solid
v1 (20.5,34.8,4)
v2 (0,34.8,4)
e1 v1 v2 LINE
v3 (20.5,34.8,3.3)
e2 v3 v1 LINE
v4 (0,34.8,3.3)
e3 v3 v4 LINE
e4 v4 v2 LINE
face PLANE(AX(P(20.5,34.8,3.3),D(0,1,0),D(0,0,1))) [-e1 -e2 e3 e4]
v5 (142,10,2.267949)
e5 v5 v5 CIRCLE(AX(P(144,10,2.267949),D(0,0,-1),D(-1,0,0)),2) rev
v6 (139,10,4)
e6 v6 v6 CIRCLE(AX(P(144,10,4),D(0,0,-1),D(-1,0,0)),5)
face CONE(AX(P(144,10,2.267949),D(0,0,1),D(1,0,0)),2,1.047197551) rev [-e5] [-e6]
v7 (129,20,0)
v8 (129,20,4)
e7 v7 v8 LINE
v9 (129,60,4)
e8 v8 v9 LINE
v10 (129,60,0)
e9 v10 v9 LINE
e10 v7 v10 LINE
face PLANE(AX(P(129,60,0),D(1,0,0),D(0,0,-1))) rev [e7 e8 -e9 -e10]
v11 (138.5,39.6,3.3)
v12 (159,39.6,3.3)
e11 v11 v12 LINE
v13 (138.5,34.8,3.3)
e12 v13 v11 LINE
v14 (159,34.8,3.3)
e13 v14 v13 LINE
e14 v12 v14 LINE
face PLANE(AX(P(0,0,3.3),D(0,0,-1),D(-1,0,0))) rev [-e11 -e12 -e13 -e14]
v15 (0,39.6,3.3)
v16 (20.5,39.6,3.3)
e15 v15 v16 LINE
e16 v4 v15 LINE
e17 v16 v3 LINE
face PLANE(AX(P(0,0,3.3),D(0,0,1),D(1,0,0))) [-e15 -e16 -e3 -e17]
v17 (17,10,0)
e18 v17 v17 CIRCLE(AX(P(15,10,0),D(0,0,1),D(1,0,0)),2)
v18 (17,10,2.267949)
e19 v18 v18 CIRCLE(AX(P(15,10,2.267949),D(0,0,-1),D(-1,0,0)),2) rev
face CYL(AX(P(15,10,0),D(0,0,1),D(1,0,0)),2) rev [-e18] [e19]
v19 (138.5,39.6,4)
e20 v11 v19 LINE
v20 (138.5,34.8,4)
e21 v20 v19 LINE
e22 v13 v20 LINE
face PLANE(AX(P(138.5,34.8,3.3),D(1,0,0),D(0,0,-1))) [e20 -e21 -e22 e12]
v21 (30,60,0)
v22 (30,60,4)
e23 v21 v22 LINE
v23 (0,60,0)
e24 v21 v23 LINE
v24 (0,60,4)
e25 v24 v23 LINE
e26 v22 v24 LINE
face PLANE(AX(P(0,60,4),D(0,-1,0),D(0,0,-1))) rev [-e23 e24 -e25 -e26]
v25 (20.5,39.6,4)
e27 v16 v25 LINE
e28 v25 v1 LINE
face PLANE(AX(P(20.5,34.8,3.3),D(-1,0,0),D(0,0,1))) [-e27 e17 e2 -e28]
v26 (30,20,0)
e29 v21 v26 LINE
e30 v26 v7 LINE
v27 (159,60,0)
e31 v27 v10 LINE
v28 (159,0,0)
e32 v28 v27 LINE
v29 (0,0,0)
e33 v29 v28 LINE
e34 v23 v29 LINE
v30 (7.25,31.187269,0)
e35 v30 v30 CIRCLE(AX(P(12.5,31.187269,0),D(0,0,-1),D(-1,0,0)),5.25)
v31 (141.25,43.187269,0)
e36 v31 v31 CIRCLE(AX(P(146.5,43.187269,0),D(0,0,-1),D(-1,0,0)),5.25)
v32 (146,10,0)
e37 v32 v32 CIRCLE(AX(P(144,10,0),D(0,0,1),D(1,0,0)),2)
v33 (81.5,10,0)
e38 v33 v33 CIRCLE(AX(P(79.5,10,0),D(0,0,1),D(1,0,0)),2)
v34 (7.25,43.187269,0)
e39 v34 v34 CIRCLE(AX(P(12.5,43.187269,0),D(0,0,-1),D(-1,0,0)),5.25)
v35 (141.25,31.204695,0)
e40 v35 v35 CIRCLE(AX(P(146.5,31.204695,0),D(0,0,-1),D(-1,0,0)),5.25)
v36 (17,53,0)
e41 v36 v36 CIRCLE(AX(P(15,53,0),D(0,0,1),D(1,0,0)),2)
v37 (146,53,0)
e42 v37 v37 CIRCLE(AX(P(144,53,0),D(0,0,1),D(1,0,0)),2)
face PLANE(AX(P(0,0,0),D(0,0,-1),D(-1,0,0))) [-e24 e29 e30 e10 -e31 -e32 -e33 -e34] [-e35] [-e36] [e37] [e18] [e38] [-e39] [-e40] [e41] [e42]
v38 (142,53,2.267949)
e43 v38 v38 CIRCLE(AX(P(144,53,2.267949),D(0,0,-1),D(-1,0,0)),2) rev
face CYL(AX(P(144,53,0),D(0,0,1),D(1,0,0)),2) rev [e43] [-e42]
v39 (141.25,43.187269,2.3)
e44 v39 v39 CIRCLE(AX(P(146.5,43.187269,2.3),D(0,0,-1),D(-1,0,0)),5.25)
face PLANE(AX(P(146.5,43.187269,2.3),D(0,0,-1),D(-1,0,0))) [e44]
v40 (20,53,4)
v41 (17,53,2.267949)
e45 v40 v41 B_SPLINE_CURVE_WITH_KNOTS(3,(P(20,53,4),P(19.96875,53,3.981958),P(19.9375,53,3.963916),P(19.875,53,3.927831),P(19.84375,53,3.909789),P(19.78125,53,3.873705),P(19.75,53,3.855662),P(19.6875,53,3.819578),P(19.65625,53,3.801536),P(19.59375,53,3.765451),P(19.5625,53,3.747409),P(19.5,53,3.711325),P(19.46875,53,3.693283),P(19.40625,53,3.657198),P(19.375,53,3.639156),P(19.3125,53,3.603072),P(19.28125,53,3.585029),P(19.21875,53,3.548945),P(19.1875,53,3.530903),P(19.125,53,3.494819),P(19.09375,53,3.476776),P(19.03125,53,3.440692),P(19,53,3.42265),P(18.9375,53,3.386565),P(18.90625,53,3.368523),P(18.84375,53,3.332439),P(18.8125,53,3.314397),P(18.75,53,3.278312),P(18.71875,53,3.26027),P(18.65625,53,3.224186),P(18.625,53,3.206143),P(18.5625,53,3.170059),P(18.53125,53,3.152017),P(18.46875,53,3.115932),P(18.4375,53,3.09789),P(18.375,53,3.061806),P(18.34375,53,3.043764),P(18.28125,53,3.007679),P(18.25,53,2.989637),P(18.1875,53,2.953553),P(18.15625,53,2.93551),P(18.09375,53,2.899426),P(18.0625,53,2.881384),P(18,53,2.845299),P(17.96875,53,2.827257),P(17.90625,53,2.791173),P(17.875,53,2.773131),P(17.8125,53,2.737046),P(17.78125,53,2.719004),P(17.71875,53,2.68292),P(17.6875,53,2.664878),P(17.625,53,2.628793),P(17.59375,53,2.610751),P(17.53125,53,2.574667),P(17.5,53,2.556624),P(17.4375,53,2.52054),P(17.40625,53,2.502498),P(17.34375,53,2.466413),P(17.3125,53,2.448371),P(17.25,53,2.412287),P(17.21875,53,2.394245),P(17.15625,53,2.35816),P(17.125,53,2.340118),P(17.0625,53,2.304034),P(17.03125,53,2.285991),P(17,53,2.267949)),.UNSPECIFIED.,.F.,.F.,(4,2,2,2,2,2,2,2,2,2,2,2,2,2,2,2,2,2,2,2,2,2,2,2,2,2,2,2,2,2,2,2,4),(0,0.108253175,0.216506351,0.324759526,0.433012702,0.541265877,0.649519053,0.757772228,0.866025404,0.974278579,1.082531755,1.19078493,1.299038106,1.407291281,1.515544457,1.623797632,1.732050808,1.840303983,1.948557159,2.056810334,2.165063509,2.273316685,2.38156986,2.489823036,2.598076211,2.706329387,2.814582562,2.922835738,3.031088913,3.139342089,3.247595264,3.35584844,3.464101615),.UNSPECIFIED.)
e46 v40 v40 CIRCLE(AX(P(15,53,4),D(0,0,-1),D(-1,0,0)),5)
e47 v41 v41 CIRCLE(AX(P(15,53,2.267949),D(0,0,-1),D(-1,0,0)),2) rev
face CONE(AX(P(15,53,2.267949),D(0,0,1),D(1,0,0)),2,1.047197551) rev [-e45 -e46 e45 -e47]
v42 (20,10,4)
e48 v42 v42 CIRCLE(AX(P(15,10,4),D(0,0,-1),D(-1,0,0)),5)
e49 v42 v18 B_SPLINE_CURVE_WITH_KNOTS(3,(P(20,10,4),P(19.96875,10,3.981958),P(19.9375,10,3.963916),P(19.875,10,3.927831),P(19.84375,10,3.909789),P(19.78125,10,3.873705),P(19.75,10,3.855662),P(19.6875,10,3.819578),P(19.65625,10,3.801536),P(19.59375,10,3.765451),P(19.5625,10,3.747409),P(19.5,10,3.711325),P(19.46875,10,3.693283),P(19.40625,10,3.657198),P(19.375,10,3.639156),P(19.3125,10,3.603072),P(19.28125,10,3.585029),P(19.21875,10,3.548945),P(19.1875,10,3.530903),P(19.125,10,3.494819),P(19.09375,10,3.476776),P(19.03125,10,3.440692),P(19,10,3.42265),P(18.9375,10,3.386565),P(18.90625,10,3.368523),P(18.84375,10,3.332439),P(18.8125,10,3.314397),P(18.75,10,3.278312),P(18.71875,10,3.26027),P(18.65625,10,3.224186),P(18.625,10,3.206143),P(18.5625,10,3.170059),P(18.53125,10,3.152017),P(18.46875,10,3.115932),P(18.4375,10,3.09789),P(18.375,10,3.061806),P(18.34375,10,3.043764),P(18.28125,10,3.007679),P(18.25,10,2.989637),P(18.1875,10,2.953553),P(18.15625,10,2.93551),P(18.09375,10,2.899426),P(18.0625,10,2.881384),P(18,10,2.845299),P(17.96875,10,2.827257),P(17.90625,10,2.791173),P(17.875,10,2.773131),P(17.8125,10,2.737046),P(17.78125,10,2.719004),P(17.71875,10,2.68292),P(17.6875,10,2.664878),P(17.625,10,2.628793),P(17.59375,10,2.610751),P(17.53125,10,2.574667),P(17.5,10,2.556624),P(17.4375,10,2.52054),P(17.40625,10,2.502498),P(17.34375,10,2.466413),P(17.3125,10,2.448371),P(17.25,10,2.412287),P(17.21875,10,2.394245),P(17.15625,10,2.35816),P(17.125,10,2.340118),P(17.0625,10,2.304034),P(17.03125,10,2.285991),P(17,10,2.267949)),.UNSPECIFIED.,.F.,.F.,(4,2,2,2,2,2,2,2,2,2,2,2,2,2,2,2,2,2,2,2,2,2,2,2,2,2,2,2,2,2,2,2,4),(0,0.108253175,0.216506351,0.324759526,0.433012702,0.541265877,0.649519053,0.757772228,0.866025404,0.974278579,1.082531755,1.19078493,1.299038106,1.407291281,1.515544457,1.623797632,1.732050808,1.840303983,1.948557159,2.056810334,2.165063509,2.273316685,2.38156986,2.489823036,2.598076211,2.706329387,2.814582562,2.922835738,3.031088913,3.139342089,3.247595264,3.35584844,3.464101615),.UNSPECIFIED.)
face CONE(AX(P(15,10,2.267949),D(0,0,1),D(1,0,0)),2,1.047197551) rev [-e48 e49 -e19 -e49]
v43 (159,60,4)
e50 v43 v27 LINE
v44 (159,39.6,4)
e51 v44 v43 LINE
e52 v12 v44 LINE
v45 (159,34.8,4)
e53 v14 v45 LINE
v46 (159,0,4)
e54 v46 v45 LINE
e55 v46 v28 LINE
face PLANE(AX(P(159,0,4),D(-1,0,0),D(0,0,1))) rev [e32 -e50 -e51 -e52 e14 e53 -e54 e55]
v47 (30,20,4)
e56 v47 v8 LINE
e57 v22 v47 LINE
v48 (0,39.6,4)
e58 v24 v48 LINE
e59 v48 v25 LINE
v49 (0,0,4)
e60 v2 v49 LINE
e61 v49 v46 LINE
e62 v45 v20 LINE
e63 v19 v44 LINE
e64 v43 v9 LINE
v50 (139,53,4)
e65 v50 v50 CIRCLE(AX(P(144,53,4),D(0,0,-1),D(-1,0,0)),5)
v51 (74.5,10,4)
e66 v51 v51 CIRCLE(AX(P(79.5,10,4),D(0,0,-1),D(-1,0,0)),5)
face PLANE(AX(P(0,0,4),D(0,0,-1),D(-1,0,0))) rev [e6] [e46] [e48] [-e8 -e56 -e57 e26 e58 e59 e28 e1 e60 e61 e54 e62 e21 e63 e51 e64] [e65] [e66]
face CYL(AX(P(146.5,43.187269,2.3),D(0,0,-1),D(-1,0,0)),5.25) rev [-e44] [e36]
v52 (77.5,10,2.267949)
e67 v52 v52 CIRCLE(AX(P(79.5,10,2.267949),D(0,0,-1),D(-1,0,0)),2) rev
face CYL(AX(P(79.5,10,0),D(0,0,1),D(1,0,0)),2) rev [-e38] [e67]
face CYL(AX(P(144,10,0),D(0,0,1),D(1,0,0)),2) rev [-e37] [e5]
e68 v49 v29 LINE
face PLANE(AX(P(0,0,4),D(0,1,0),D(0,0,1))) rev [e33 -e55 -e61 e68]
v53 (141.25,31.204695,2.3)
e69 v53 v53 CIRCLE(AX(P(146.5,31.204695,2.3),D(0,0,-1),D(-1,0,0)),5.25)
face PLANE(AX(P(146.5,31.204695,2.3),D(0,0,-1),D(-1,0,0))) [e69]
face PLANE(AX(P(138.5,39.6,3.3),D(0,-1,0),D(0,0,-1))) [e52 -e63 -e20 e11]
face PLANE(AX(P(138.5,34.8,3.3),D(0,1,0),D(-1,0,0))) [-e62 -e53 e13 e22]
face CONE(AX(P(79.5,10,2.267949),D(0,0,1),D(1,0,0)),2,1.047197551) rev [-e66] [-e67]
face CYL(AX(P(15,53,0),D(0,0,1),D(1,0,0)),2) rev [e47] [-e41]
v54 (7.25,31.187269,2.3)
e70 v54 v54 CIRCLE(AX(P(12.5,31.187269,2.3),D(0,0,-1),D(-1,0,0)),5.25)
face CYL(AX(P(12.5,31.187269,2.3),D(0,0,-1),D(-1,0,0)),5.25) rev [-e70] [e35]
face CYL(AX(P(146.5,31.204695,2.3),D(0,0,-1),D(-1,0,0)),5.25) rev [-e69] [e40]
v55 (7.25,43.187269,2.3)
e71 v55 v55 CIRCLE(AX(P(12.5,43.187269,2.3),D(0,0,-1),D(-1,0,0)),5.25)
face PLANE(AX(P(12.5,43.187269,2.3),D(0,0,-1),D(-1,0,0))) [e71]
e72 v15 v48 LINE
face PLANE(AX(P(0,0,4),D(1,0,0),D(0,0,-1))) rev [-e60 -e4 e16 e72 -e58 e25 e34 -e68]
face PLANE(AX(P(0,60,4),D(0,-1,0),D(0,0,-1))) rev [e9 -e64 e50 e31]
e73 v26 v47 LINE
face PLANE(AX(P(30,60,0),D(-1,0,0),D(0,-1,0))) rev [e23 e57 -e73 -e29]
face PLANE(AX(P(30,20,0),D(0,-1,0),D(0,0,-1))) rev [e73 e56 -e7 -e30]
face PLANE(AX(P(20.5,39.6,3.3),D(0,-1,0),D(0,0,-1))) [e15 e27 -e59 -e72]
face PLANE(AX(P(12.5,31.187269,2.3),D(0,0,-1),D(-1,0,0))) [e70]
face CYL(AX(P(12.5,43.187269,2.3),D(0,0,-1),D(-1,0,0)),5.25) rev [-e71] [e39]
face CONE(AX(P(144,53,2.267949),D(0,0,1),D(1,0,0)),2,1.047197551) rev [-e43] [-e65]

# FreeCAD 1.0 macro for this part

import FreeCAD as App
import Part
import Sketcher
from FreeCAD import Vector
Q = App.Units.Quantity


def edges_at(feature, points):
    """Names of the edges that pass closest to the given points."""
    edges = feature.Shape.Edges
    near = lambda p: min(range(len(edges)), key=lambda i: edges[i].distToShape(Part.Vertex(*p))[0])
    return sorted({f"Edge{near(p) + 1}" for p in points})

doc = App.newDocument("Part")
params = doc.addObject("Spreadsheet::Sheet", "Params")
for row, (alias, value) in enumerate([
    ("sketch1_width", "159 mm"),
    ("sketch1_height", "60 mm"),
    ("pad1_length", "4 mm"),
    ("sketch2_width", "20.5 mm"),
    ("sketch2_height", "4.8 mm"),
    ("pocket1_length", "0.7 mm"),
    ("sketch3_diameter", "10.5 mm"),
    ("pocket2_length", "2.3 mm"),
    ("sketch4_width", "99 mm"),
    ("sketch4_height", "40 mm"),
    ("pocket3_length", "4 mm"),
    ("sketch5_diameter", "4 mm"),
    ("pocket4_length", "4 mm"),
    ("chamfer_size", "3 mm"),
    ("chamfer_size2", "1.732051 mm"),
], start=1):
    params.set(f"A{row}", alias)
    params.set(f"B{row}", "=" + value)
    params.setAlias(f"B{row}", alias)

body = doc.addObject("PartDesign::Body", "Body")

# Sketch on XY plane
sketch1 = body.newObject("Sketcher::SketchObject", "Sketch")
sketch1.AttachmentSupport = (doc.getObject("XY_Plane"), [""])
sketch1.MapMode = "FlatFace"
sketch1.addGeometry([
    Part.LineSegment(Vector(0, 60, 0), Vector(0, 0, 0)),
    Part.LineSegment(Vector(0, 0, 0), Vector(159, 0, 0)),
    Part.LineSegment(Vector(159, 0, 0), Vector(159, 60, 0)),
    Part.LineSegment(Vector(159, 60, 0), Vector(0, 60, 0)),
], False)
sketch1.addConstraint([
    Sketcher.Constraint("Coincident", 0, 2, 1, 1),
    Sketcher.Constraint("Coincident", 1, 2, 2, 1),
    Sketcher.Constraint("Coincident", 2, 2, 3, 1),
    Sketcher.Constraint("Coincident", 3, 2, 0, 1),
    Sketcher.Constraint("Vertical", 0),
    Sketcher.Constraint("Horizontal", 1),
    Sketcher.Constraint("Vertical", 2),
    Sketcher.Constraint("Horizontal", 3),
    Sketcher.Constraint("Coincident", 0, 2, -1, 1),
    Sketcher.Constraint("DistanceX", 1, 1, 1, 2, Q("159 mm")),
    Sketcher.Constraint("DistanceY", 0, 2, 0, 1, Q("60 mm")),
])
sketch1.setExpression("Constraints[9]", "Params.sketch1_width")
sketch1.setExpression("Constraints[10]", "Params.sketch1_height")
pad1 = body.newObject("PartDesign::Pad", "Pad")
pad1.Profile = sketch1
pad1.setExpression("Length", "Params.pad1_length")

# Sketch on XY plane
sketch2 = body.newObject("Sketcher::SketchObject", "Sketch001")
sketch2.AttachmentSupport = (doc.getObject("XY_Plane"), [""])
sketch2.MapMode = "FlatFace"
sketch2.AttachmentOffset = App.Placement(Vector(0, 0, 4), App.Rotation())
sketch2.addGeometry([
    Part.LineSegment(Vector(20.5, 39.6, 0), Vector(20.5, 34.8, 0)),  # 0
    Part.LineSegment(Vector(20.5, 34.8, 0), Vector(0, 34.8, 0)),  # 1
    Part.LineSegment(Vector(0, 34.8, 0), Vector(0, 39.6, 0)),  # 2
    Part.LineSegment(Vector(0, 39.6, 0), Vector(20.5, 39.6, 0)),  # 3
    Part.LineSegment(Vector(159, 39.6, 0), Vector(159, 34.8, 0)),  # 4
    Part.LineSegment(Vector(159, 34.8, 0), Vector(138.5, 34.8, 0)),  # 5
    Part.LineSegment(Vector(138.5, 34.8, 0), Vector(138.5, 39.6, 0)),  # 6
    Part.LineSegment(Vector(138.5, 39.6, 0), Vector(159, 39.6, 0)),  # 7
], False)
sketch2.addConstraint([
    Sketcher.Constraint("Coincident", 0, 2, 1, 1),
    Sketcher.Constraint("Coincident", 1, 2, 2, 1),
    Sketcher.Constraint("Coincident", 2, 2, 3, 1),
    Sketcher.Constraint("Coincident", 3, 2, 0, 1),
    Sketcher.Constraint("Coincident", 4, 2, 5, 1),
    Sketcher.Constraint("Coincident", 5, 2, 6, 1),
    Sketcher.Constraint("Coincident", 6, 2, 7, 1),
    Sketcher.Constraint("Coincident", 7, 2, 4, 1),
    Sketcher.Constraint("Vertical", 0),
    Sketcher.Constraint("Horizontal", 1),
    Sketcher.Constraint("Vertical", 2),
    Sketcher.Constraint("Horizontal", 3),
    Sketcher.Constraint("Vertical", 4),
    Sketcher.Constraint("Horizontal", 5),
    Sketcher.Constraint("Vertical", 6),
    Sketcher.Constraint("Horizontal", 7),
    Sketcher.Constraint("PointOnObject", 1, 2, -2),
    Sketcher.Constraint("Horizontal", 1, 2, 4, 2),
    Sketcher.Constraint("Horizontal", 3, 2, 6, 2),
    Sketcher.Constraint("Equal", 3, 5),
    Sketcher.Constraint("DistanceX", 1, 2, 1, 1, Q("20.5 mm")),
    Sketcher.Constraint("DistanceY", 0, 2, 0, 1, Q("4.8 mm")),
    Sketcher.Constraint("DistanceX", -1, 1, 4, 2, Q("159 mm")),
    Sketcher.Constraint("DistanceY", -1, 1, 0, 2, Q("34.8 mm")),
])
sketch2.setExpression("Constraints[20]", "Params.sketch2_width")
sketch2.setExpression("Constraints[21]", "Params.sketch2_height")
pocket1 = body.newObject("PartDesign::Pocket", "Pocket")
pocket1.Profile = sketch2
pocket1.setExpression("Length", "Params.pocket1_length")

# Sketch on XY plane
sketch3 = body.newObject("Sketcher::SketchObject", "Sketch002")
sketch3.AttachmentSupport = (doc.getObject("XY_Plane"), [""])
sketch3.MapMode = "FlatFace"
sketch3.addGeometry([
    Part.Circle(Vector(12, 31, 0), Vector(0, 0, 1), 5),
    Part.Circle(Vector(12, 43, 0), Vector(0, 0, 1), 5),
    Part.Circle(Vector(146, 31, 0), Vector(0, 0, 1), 5),
    Part.Circle(Vector(146, 43, 0), Vector(0, 0, 1), 5),
], False)
sketch3.addConstraint([
    Sketcher.Constraint("Equal", 0, 1),
    Sketcher.Constraint("Equal", 1, 2),
    Sketcher.Constraint("Equal", 2, 3),
    Sketcher.Constraint("Horizontal", 1, 3, 3, 3),
    Sketcher.Constraint("Vertical", 0, 3, 1, 3),
    Sketcher.Constraint("Vertical", 2, 3, 3, 3),
    Sketcher.Constraint("Diameter", 0, Q("10.5 mm")),
    Sketcher.Constraint("DistanceY", 0, 3, 1, 3, Q("12 mm")),
    Sketcher.Constraint("DistanceX", 0, 3, 2, 3, Q("134 mm")),
    Sketcher.Constraint("DistanceX", -1, 1, 0, 3, Q("12.5 mm")),
    Sketcher.Constraint("DistanceY", -1, 1, 0, 3, Q("31.187269 mm")),
    Sketcher.Constraint("DistanceY", -1, 1, 2, 3, Q("31.204695 mm")),
])
sketch3.setExpression("Constraints[6]", "Params.sketch3_diameter")
pocket2 = body.newObject("PartDesign::Pocket", "Pocket001")
pocket2.Profile = sketch3
pocket2.setExpression("Length", "Params.pocket2_length")
pocket2.Reversed = True

# Sketch on XY plane
sketch4 = body.newObject("Sketcher::SketchObject", "Sketch003")
sketch4.AttachmentSupport = (doc.getObject("XY_Plane"), [""])
sketch4.MapMode = "FlatFace"
sketch4.AttachmentOffset = App.Placement(Vector(0, 0, 4), App.Rotation())
sketch4.addGeometry([
    Part.LineSegment(Vector(30, 60, 0), Vector(30, 20, 0)),
    Part.LineSegment(Vector(30, 20, 0), Vector(129, 20, 0)),
    Part.LineSegment(Vector(129, 20, 0), Vector(129, 60, 0)),
    Part.LineSegment(Vector(129, 60, 0), Vector(30, 60, 0)),
], False)
sketch4.addConstraint([
    Sketcher.Constraint("Coincident", 0, 2, 1, 1),
    Sketcher.Constraint("Coincident", 1, 2, 2, 1),
    Sketcher.Constraint("Coincident", 2, 2, 3, 1),
    Sketcher.Constraint("Coincident", 3, 2, 0, 1),
    Sketcher.Constraint("Vertical", 0),
    Sketcher.Constraint("Horizontal", 1),
    Sketcher.Constraint("Vertical", 2),
    Sketcher.Constraint("Horizontal", 3),
    Sketcher.Constraint("DistanceX", 1, 1, 1, 2, Q("99 mm")),
    Sketcher.Constraint("DistanceY", 0, 2, 0, 1, Q("40 mm")),
    Sketcher.Constraint("DistanceX", -1, 1, 0, 2, Q("30 mm")),
    Sketcher.Constraint("DistanceY", -1, 1, 0, 2, Q("20 mm")),
])
sketch4.setExpression("Constraints[8]", "Params.sketch4_width")
sketch4.setExpression("Constraints[9]", "Params.sketch4_height")
pocket3 = body.newObject("PartDesign::Pocket", "Pocket002")
pocket3.Profile = sketch4
pocket3.setExpression("Length", "Params.pocket3_length")

# Sketch on XY plane
sketch5 = body.newObject("Sketcher::SketchObject", "Sketch004")
sketch5.AttachmentSupport = (doc.getObject("XY_Plane"), [""])
sketch5.MapMode = "FlatFace"
sketch5.AttachmentOffset = App.Placement(Vector(0, 0, 4), App.Rotation())
sketch5.addGeometry([
    Part.Circle(Vector(15, 10, 0), Vector(0, 0, 1), 2),  # 0
    Part.Circle(Vector(144, 10, 0), Vector(0, 0, 1), 2),  # 1
    Part.Circle(Vector(15, 53, 0), Vector(0, 0, 1), 2),  # 2
    Part.Circle(Vector(144, 53, 0), Vector(0, 0, 1), 2),  # 3
    Part.Circle(Vector(79.5, 10, 0), Vector(0, 0, 1), 2),  # 4
], False)
sketch5.addConstraint([
    Sketcher.Constraint("Equal", 0, 1),
    Sketcher.Constraint("Equal", 1, 2),
    Sketcher.Constraint("Equal", 2, 3),
    Sketcher.Constraint("Equal", 3, 4),
    Sketcher.Constraint("Horizontal", 0, 3, 1, 3),
    Sketcher.Constraint("Horizontal", 2, 3, 3, 3),
    Sketcher.Constraint("Horizontal", 1, 3, 4, 3),
    Sketcher.Constraint("Vertical", 0, 3, 2, 3),
    Sketcher.Constraint("Vertical", 1, 3, 3, 3),
    Sketcher.Constraint("Diameter", 0, Q("4 mm")),
    Sketcher.Constraint("DistanceX", -1, 1, 0, 3, Q("15 mm")),
    Sketcher.Constraint("DistanceY", -1, 1, 0, 3, Q("10 mm")),
    Sketcher.Constraint("DistanceX", -1, 1, 1, 3, Q("144 mm")),
    Sketcher.Constraint("DistanceY", -1, 1, 2, 3, Q("53 mm")),
    Sketcher.Constraint("DistanceX", -1, 1, 4, 3, Q("79.5 mm")),
])
sketch5.setExpression("Constraints[9]", "Params.sketch5_diameter")
pocket4 = body.newObject("PartDesign::Pocket", "Pocket003")
pocket4.Profile = sketch5
pocket4.setExpression("Length", "Params.pocket4_length")
doc.recompute()

chamfer = body.newObject("PartDesign::Chamfer", "Chamfer")
chamfer.Base = (pocket4, edges_at(pocket4, [
    (13, 10, 4),
    (142, 10, 4),
    (13, 53, 4),
    (142, 53, 4),
    (77.5, 10, 4),
]))
chamfer.ChamferType = "Two distances"
chamfer.setExpression("Size", "Params.chamfer_size")
chamfer.setExpression("Size2", "Params.chamfer_size2")

doc.recompute()
